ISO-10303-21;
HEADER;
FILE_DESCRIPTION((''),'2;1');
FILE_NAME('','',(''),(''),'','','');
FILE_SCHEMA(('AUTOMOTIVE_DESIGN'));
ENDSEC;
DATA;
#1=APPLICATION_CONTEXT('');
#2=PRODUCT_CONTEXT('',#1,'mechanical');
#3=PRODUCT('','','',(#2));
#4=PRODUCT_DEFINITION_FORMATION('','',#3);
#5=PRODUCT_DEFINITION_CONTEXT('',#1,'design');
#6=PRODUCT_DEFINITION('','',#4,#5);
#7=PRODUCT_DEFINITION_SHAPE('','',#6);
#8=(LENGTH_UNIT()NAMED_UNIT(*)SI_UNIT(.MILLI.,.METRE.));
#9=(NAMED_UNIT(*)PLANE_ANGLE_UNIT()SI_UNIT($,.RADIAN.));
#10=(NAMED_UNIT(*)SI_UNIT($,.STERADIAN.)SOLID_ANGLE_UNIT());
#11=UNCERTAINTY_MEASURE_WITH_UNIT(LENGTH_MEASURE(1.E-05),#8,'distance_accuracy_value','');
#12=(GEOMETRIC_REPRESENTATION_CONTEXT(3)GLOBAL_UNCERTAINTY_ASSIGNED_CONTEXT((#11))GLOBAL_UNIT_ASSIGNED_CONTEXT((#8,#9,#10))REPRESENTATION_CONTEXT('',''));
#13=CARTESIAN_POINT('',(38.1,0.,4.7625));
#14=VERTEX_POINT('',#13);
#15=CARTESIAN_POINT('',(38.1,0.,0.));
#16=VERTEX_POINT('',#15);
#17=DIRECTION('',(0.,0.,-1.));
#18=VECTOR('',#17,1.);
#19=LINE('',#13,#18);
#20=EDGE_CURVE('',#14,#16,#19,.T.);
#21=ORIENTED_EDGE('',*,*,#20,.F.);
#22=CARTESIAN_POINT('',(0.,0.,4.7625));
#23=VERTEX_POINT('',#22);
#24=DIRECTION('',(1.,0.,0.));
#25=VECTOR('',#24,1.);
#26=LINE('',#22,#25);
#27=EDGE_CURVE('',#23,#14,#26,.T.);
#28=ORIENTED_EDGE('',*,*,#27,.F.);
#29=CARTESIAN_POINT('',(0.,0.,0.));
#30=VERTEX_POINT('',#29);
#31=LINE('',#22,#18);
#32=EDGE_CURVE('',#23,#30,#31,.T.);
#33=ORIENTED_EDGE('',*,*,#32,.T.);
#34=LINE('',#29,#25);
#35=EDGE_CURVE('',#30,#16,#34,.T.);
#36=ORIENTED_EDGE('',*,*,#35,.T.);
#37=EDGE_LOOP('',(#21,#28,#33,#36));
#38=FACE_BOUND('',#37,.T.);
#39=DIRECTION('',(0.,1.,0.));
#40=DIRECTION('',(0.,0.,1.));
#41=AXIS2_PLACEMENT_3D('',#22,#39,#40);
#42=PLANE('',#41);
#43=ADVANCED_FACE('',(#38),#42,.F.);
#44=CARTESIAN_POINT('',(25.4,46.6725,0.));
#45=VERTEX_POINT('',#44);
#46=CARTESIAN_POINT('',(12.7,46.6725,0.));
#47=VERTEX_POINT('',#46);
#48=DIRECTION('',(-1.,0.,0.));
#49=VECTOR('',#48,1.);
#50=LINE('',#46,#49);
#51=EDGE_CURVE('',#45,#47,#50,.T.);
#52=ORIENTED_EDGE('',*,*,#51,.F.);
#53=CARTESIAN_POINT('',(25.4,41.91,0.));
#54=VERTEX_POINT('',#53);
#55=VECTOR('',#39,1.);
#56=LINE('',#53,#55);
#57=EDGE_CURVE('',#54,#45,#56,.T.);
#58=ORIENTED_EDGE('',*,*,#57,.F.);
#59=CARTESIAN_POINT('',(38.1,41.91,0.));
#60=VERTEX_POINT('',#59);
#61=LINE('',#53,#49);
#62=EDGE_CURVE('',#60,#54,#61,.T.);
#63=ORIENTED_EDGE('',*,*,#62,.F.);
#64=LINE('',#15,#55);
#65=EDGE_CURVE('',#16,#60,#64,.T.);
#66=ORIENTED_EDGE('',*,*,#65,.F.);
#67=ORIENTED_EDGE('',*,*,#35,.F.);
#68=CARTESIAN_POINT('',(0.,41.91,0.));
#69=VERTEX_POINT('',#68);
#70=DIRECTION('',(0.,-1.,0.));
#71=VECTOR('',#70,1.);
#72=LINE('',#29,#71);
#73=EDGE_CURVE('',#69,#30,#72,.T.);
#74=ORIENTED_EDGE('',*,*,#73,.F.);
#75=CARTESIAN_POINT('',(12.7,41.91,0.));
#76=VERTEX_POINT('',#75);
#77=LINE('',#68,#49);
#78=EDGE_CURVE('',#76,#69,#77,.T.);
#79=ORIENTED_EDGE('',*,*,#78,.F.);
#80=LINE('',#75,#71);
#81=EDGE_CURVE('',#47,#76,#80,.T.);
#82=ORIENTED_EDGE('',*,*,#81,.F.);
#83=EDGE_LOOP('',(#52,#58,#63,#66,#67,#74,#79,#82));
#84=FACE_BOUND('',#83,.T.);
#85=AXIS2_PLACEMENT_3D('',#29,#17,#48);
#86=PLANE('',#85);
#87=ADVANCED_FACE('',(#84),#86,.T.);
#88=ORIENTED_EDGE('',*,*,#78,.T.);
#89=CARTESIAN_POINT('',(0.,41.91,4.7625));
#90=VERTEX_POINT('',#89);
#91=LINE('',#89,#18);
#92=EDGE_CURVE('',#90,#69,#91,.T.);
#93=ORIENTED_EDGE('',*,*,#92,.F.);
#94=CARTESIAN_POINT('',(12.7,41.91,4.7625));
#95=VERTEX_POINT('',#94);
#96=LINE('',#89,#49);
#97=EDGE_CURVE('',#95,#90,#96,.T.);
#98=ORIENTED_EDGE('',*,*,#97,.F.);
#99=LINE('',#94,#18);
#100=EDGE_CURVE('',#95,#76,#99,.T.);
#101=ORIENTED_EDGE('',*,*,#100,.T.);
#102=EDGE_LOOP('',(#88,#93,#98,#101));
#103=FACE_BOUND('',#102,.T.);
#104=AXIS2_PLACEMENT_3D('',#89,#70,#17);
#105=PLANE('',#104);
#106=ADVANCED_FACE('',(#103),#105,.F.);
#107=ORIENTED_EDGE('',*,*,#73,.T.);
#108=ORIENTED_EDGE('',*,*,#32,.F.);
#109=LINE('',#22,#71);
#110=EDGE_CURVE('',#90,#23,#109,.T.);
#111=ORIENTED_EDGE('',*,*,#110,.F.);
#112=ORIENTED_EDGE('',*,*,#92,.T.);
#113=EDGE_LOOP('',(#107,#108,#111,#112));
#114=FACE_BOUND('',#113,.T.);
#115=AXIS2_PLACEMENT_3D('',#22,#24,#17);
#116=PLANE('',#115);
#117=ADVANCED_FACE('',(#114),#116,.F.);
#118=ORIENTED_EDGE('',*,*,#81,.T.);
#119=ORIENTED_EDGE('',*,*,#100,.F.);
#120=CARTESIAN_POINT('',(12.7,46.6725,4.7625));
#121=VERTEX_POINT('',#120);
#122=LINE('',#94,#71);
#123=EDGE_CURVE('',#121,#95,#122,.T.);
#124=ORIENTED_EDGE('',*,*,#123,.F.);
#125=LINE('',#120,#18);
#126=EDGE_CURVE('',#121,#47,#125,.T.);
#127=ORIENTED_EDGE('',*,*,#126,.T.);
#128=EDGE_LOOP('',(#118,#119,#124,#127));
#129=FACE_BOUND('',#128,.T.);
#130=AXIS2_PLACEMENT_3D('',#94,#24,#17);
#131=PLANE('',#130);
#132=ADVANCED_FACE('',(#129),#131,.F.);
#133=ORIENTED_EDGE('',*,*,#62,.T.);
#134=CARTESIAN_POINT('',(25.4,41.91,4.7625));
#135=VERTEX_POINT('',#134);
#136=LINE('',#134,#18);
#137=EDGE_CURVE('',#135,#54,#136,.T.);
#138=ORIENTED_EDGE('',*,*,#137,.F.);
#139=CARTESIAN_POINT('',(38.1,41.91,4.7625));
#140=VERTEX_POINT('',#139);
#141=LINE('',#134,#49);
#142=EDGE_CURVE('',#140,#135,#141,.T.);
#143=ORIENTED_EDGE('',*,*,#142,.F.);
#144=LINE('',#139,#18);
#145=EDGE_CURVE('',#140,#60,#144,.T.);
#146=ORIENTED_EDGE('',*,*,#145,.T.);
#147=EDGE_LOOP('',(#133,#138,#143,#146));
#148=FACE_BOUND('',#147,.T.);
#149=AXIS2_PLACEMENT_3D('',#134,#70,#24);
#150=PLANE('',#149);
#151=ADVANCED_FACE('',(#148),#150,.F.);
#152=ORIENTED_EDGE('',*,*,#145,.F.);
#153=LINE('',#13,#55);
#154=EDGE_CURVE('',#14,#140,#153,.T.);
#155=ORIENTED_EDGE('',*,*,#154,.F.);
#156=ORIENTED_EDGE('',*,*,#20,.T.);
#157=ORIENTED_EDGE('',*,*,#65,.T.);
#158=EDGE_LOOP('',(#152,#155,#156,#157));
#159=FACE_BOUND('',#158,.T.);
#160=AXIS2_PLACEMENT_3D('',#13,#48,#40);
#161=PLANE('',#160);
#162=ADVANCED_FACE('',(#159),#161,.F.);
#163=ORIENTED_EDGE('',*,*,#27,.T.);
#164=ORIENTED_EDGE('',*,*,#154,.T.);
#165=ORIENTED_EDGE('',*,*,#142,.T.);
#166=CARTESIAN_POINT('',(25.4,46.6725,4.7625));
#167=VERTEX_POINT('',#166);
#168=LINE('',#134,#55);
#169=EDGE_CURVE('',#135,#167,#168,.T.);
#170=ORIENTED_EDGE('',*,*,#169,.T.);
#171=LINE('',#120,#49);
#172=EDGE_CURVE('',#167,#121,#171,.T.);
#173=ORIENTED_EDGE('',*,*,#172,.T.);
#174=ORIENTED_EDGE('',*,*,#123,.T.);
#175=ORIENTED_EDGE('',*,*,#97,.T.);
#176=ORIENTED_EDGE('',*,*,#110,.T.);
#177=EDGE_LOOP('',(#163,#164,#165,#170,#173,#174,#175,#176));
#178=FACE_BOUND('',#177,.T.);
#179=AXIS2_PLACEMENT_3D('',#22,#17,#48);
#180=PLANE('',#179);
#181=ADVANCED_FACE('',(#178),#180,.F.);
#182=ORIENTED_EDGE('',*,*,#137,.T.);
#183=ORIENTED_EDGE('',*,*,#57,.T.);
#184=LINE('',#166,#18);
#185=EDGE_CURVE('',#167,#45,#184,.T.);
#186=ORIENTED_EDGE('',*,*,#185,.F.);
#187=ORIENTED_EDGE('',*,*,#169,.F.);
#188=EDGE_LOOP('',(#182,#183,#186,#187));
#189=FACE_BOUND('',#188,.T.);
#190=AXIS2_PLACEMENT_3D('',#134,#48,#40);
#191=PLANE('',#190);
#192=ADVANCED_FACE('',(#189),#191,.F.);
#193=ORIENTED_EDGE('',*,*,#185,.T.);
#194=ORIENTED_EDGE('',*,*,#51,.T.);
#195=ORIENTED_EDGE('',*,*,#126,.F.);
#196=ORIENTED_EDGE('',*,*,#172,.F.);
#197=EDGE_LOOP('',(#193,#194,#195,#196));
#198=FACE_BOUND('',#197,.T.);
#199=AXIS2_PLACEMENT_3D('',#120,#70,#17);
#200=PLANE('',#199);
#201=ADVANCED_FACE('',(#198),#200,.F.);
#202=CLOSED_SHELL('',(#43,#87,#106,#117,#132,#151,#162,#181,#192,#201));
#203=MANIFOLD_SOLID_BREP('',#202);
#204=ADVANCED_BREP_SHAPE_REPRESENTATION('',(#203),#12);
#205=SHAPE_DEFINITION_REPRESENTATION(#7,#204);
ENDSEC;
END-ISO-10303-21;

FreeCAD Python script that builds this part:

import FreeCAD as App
import Part
import Sketcher

V = App.Vector
Q = App.Units.Quantity


def add_polygon(sketch, points):
    """Adds a closed chain of lines whose ends are joined by coincident constraints."""
    first, n = sketch.GeometryCount, len(points)
    for a, b in zip(points, points[1:] + points[:1]):
        sketch.addGeometry(Part.LineSegment(App.Vector(*a, 0), App.Vector(*b, 0)), False)
    for i in range(n):
        sketch.addConstraint(Sketcher.Constraint("Coincident", first + i, 2, first + (i + 1) % n, 1))

doc = App.newDocument("Part")
params = doc.addObject("Spreadsheet::Sheet", "Params")
for row, (alias, value) in enumerate([
    ("sketch1_width", "0.5 in"),
    ("sketch1_height", "1.65 in"),
    ("sketch1_height2", "0.1875 in"),
    ("pad1_length", "0.1875 in"),
], start=1):
    params.set(f"A{row}", alias)
    params.set(f"B{row}", "=" + value)
    params.setAlias(f"B{row}", alias)

body = doc.addObject("PartDesign::Body", "Body")

sketch1 = doc.addObject("Sketcher::SketchObject", "Sketch")
body.addObject(sketch1)
sketch1.AttachmentSupport = (doc.XY_Plane, [""])
sketch1.MapMode = "FlatFace"
add_polygon(sketch1, [(38.1, 41.91), (25.4, 41.91), (25.4, 46.6725), (12.7, 46.6725), (12.7, 41.91), (0, 41.91), (0, 0), (38.1, 0)])
sketch1.addConstraint([
    Sketcher.Constraint("Horizontal", 0),
    Sketcher.Constraint("Vertical", 1),
    Sketcher.Constraint("Horizontal", 2),
    Sketcher.Constraint("Vertical", 3),
    Sketcher.Constraint("Horizontal", 4),
    Sketcher.Constraint("Vertical", 5),
    Sketcher.Constraint("Horizontal", 6),
    Sketcher.Constraint("Vertical", 7),
    Sketcher.Constraint("Coincident", 5, 2, -1, 1),
    Sketcher.Constraint("Horizontal", 0, 2, 3, 2),
    Sketcher.Constraint("Equal", 0, 2),
    Sketcher.Constraint("Equal", 2, 4),
    Sketcher.Constraint("DistanceX", 0, 2, 0, 1, Q("0.5 in")),
    Sketcher.Constraint("DistanceY", 5, 2, 5, 1, Q("1.65 in")),
    Sketcher.Constraint("DistanceY", 1, 1, 1, 2, Q("0.1875 in")),
])
sketch1.setExpression("Constraints[20]", "Params.sketch1_width")
sketch1.setExpression("Constraints[21]", "Params.sketch1_height")
sketch1.setExpression("Constraints[22]", "Params.sketch1_height2")
pad1 = doc.addObject("PartDesign::Pad", "Pad")
body.addObject(pad1)
pad1.Profile = sketch1
pad1.setExpression("Length", "Params.pad1_length")

doc.recompute()
